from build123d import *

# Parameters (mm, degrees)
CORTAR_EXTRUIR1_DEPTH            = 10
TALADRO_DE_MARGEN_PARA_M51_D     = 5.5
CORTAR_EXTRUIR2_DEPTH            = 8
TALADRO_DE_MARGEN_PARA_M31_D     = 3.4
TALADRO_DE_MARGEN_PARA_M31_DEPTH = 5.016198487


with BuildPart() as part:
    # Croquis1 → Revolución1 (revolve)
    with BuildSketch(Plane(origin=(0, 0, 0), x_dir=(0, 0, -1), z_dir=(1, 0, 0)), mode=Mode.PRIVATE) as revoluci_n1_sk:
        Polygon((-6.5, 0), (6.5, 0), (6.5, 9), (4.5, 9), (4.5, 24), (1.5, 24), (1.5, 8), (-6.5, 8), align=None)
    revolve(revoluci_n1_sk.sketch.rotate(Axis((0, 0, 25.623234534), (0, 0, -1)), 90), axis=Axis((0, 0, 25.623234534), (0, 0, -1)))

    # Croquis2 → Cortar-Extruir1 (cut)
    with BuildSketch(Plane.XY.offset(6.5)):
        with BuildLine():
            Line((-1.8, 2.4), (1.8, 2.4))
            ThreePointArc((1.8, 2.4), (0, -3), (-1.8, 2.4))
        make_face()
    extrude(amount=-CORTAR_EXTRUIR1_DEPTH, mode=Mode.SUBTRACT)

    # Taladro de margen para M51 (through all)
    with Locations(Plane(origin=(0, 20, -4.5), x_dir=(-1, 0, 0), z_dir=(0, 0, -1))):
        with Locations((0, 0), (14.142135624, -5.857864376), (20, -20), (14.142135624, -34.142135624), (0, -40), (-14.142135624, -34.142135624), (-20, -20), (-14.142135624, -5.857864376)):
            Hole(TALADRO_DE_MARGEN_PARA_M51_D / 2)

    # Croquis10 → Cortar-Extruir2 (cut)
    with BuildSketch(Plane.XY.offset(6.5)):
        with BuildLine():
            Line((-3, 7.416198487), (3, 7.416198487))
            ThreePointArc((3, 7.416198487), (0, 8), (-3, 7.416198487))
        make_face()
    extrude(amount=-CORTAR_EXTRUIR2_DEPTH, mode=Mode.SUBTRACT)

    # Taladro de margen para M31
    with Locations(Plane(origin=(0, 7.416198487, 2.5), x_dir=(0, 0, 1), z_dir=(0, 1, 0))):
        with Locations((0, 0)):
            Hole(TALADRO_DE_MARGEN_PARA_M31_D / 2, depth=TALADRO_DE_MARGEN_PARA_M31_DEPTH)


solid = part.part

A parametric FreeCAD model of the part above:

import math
import FreeCAD as App
import Part
import Sketcher

V = App.Vector


def add_polygon(sketch, points):
    """Adds a closed chain of lines whose ends are joined by coincident constraints."""
    first, n = sketch.GeometryCount, len(points)
    for a, b in zip(points, points[1:] + points[:1]):
        sketch.addGeometry(Part.LineSegment(App.Vector(*a, 0), App.Vector(*b, 0)), False)
    for i in range(n):
        sketch.addConstraint(Sketcher.Constraint("Coincident", first + i, 2, first + (i + 1) % n, 1))

doc = App.newDocument("Part")
body = doc.addObject("PartDesign::Body", "Body")

# Sketch on YZ plane
sketch1 = body.newObject("Sketcher::SketchObject", "Sketch")
sketch1.AttachmentSupport = (doc.getObject("YZ_Plane"), [""])
sketch1.MapMode = "FlatFace"
add_polygon(sketch1, [(0, 6.5), (0, -6.5), (9, -6.5), (9, -4.5), (24, -4.5), (24, -1.5), (8, -1.5), (8, 6.5)])  # lines 0-7
sketch1.addConstraint(Sketcher.Constraint("Vertical", 0))
sketch1.addConstraint(Sketcher.Constraint("Horizontal", 1))
sketch1.addConstraint(Sketcher.Constraint("Vertical", 2))
sketch1.addConstraint(Sketcher.Constraint("Horizontal", 3))
sketch1.addConstraint(Sketcher.Constraint("Vertical", 4))
sketch1.addConstraint(Sketcher.Constraint("Horizontal", 5))
sketch1.addConstraint(Sketcher.Constraint("Vertical", 6))
sketch1.addConstraint(Sketcher.Constraint("Horizontal", 7))
sketch1.addConstraint(Sketcher.Constraint("Symmetric", 0, 2, 7, 2, -1, 1))
sketch1.addConstraint(Sketcher.Constraint("Equal", 7, 6))
sketch1.addConstraint(Sketcher.Constraint("DistanceX", 1, 1, 1, 2, 9.0))
sketch1.addConstraint(Sketcher.Constraint("DistanceX", 3, 1, 3, 2, 15.0))
sketch1.addConstraint(Sketcher.Constraint("DistanceX", 5, 2, 5, 1, 16.0))
sketch1.addConstraint(Sketcher.Constraint("DistanceY", 0, 2, 0, 1, 13.0))
sketch1.addConstraint(Sketcher.Constraint("DistanceY", 2, 1, 2, 2, 2.0))
revolution = body.newObject("PartDesign::Revolution", "Revolution")
revolution.Profile = sketch1
revolution.ReferenceAxis = (sketch1, ["V_Axis"])
revolution.Angle = 360

# Sketch on XY plane
sketch2 = body.newObject("Sketcher::SketchObject", "Sketch001")
sketch2.AttachmentSupport = (doc.getObject("XY_Plane"), [""])
sketch2.MapMode = "FlatFace"
sketch2.AttachmentOffset = App.Placement(V(0, 0, 6.5), App.Rotation())
sketch2.addGeometry(Part.LineSegment(V(1.8, 2.4, 0), V(-1.8, 2.4, 0)), False)
sketch2.addGeometry(Part.ArcOfCircle(Part.Circle(V(0, 0, 0), V(0, 0, 1), 3), math.radians(126.869898), math.radians(413.130102)), False)
sketch2.addConstraint(Sketcher.Constraint("Coincident", 0, 1, 1, 2))
sketch2.addConstraint(Sketcher.Constraint("Coincident", 1, 1, 0, 2))
sketch2.addConstraint(Sketcher.Constraint("Horizontal", 0))
sketch2.addConstraint(Sketcher.Constraint("Coincident", 1, 3, -1, 1))
sketch2.addConstraint(Sketcher.Constraint("Radius", 1, 3.0))
sketch2.addConstraint(Sketcher.Constraint("DistanceX", 0, 2, 0, 1, 3.6))
pocket1 = body.newObject("PartDesign::Pocket", "Pocket")
pocket1.Profile = sketch2
pocket1.Length = 10

# Sketch on XY plane
sketch3 = body.newObject("Sketcher::SketchObject", "Sketch002")
sketch3.AttachmentSupport = (doc.getObject("XY_Plane"), [""])
sketch3.MapMode = "FlatFace"
sketch3.AttachmentOffset = App.Placement(V(0, 0, -4.5), App.Rotation())
sketch3.addGeometry(Part.Circle(V(0, 20, 0), V(0, 0, 1), 2.75), False)
sketch3.addGeometry(Part.Circle(V(-14.142136, 14.142136, 0), V(0, 0, 1), 2.75), False)
sketch3.addGeometry(Part.Circle(V(-20, 0, 0), V(0, 0, 1), 2.75), False)
sketch3.addGeometry(Part.Circle(V(-14.142136, -14.142136, 0), V(0, 0, 1), 2.75), False)
sketch3.addGeometry(Part.Circle(V(0, -20, 0), V(0, 0, 1), 2.75), False)
sketch3.addGeometry(Part.Circle(V(14.142136, -14.142136, 0), V(0, 0, 1), 2.75), False)
sketch3.addGeometry(Part.Circle(V(20, 0, 0), V(0, 0, 1), 2.75), False)
sketch3.addGeometry(Part.Circle(V(14.142136, 14.142136, 0), V(0, 0, 1), 2.75), False)
sketch3.addConstraint(Sketcher.Constraint("Equal", 0, 1))
sketch3.addConstraint(Sketcher.Constraint("Equal", 1, 2))
sketch3.addConstraint(Sketcher.Constraint("Equal", 2, 3))
sketch3.addConstraint(Sketcher.Constraint("Equal", 3, 4))
sketch3.addConstraint(Sketcher.Constraint("Equal", 4, 5))
sketch3.addConstraint(Sketcher.Constraint("Equal", 5, 6))
sketch3.addConstraint(Sketcher.Constraint("Equal", 6, 7))
sketch3.addConstraint(Sketcher.Constraint("Symmetric", 0, 3, 4, 3, -1, 1))
sketch3.addConstraint(Sketcher.Constraint("Symmetric", 1, 3, 5, 3, -1, 1))
sketch3.addConstraint(Sketcher.Constraint("Symmetric", 2, 3, 6, 3, -1, 1))
sketch3.addConstraint(Sketcher.Constraint("Symmetric", 3, 3, 7, 3, -1, 1))
sketch3.addConstraint(Sketcher.Constraint("Symmetric", 3, 3, 5, 3, -2))
sketch3.addConstraint(Sketcher.Constraint("PointOnObject", 0, 3, -2))
sketch3.addConstraint(Sketcher.Constraint("PointOnObject", 2, 3, -1))
sketch3.addConstraint(Sketcher.Constraint("Diameter", 0, 5.5))
sketch3.addConstraint(Sketcher.Constraint("DistanceY", -1, 1, 0, 3, 20.0))
sketch3.addConstraint(Sketcher.Constraint("DistanceX", 2, 3, -1, 1, 20.0))
sketch3.addConstraint(Sketcher.Constraint("DistanceY", 3, 3, 1, 3, 28.284271))
sketch3.addConstraint(Sketcher.Constraint("DistanceX", 3, 3, 5, 3, 28.284271))
doc.recompute()
hole = body.newObject("PartDesign::Hole", "Hole")
hole.Profile = sketch3
hole.ThreadType = "None"
hole.Diameter = 5.5
hole.DepthType = "ThroughAll"
hole.Reversed = True

# Sketch on XY plane
sketch4 = body.newObject("Sketcher::SketchObject", "Sketch003")
sketch4.AttachmentSupport = (doc.getObject("XY_Plane"), [""])
sketch4.MapMode = "FlatFace"
sketch4.AttachmentOffset = App.Placement(V(0, 0, 6.5), App.Rotation())
sketch4.addGeometry(Part.LineSegment(V(-3, 7.416198, 0), V(3, 7.416198, 0)), False)
sketch4.addGeometry(Part.ArcOfCircle(Part.Circle(V(0, 0, 0), V(0, 0, 1), 8), math.radians(67.975687), math.radians(112.024313)), False)
sketch4.addConstraint(Sketcher.Constraint("Coincident", 0, 1, 1, 2))
sketch4.addConstraint(Sketcher.Constraint("Coincident", 1, 1, 0, 2))
sketch4.addConstraint(Sketcher.Constraint("Horizontal", 0))
sketch4.addConstraint(Sketcher.Constraint("Coincident", 1, 3, -1, 1))
sketch4.addConstraint(Sketcher.Constraint("Radius", 1, 8.0))
sketch4.addConstraint(Sketcher.Constraint("DistanceX", 0, 1, 0, 2, 6.0))
pocket2 = body.newObject("PartDesign::Pocket", "Pocket001")
pocket2.Profile = sketch4
pocket2.Length = 8

# Sketch on XZ plane
sketch5 = body.newObject("Sketcher::SketchObject", "Sketch004")
sketch5.AttachmentSupport = (doc.getObject("XZ_Plane"), [""])
sketch5.MapMode = "FlatFace"
sketch5.AttachmentOffset = App.Placement(V(0, 0, -7.416198), App.Rotation())
sketch5.addGeometry(Part.Circle(V(0, 2.5, 0), V(0, 0, 1), 1.7), False)
sketch5.addConstraint(Sketcher.Constraint("PointOnObject", 0, 3, -2))
sketch5.addConstraint(Sketcher.Constraint("Diameter", 0, 3.4))
sketch5.addConstraint(Sketcher.Constraint("DistanceY", -1, 1, 0, 3, 2.5))
doc.recompute()
hole2 = body.newObject("PartDesign::Hole", "Hole001")
hole2.Profile = sketch5
hole2.ThreadType = "None"
hole2.Diameter = 3.4
hole2.DepthType = "Dimension"
hole2.Depth = 5.016198
hole2.DrillPoint = "Flat"
hole2.Reversed = True

doc.recompute()
